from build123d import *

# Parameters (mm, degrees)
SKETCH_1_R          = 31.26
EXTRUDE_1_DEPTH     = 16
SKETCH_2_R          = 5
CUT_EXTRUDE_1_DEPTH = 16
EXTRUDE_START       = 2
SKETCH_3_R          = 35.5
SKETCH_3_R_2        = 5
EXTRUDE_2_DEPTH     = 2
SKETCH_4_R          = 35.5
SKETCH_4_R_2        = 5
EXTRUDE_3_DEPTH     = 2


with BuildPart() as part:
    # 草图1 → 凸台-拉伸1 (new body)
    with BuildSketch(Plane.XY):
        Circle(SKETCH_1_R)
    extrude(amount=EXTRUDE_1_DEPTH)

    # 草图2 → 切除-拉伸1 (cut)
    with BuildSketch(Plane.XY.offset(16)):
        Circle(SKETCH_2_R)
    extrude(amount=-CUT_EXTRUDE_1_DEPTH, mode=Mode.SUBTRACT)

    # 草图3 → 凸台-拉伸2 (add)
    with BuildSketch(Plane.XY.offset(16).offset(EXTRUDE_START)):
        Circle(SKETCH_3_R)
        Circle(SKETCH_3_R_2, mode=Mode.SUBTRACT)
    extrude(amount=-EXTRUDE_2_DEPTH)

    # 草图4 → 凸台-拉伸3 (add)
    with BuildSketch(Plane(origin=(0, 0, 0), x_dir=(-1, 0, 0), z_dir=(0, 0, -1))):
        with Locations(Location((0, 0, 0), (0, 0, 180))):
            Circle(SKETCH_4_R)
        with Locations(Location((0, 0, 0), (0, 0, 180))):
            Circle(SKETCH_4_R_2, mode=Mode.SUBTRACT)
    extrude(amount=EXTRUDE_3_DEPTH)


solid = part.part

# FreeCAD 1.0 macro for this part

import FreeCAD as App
import Part
import Sketcher
Q = App.Units.Quantity

doc = App.newDocument("Part")
body = doc.addObject("PartDesign::Body", "Body")

sketch1 = body.newObject("Sketcher::SketchObject", "Sketch")
sketch1.AttachmentSupport = (doc.getObject("XY_Plane"), [""])
sketch1.MapMode = "FlatFace"
sketch1.addGeometry(Part.Circle(App.Vector(0, 0, 0), App.Vector(0, 0, 1), 31.26), False)
sketch1.addConstraint([
    Sketcher.Constraint("Coincident", 0, 3, -1, 1),
    Sketcher.Constraint("Diameter", 0, Q("62.52 mm")),
])
pad1 = body.newObject("PartDesign::Pad", "Pad")
pad1.Profile = sketch1
pad1.Length = 16

sketch2 = body.newObject("Sketcher::SketchObject", "Sketch001")
sketch2.AttachmentSupport = (doc.getObject("XY_Plane"), [""])
sketch2.MapMode = "FlatFace"
sketch2.AttachmentOffset = App.Placement(App.Vector(0, 0, 16), App.Rotation())
sketch2.addGeometry(Part.Circle(App.Vector(0, 0, 0), App.Vector(0, 0, 1), 5), False)
sketch2.addConstraint([
    Sketcher.Constraint("Coincident", 0, 3, -1, 1),
    Sketcher.Constraint("Diameter", 0, Q("10 mm")),
])
pocket1 = body.newObject("PartDesign::Pocket", "Pocket")
pocket1.Profile = sketch2
pocket1.Length = 16

sketch3 = body.newObject("Sketcher::SketchObject", "Sketch002")
sketch3.AttachmentSupport = (doc.getObject("XY_Plane"), [""])
sketch3.MapMode = "FlatFace"
sketch3.AttachmentOffset = App.Placement(App.Vector(0, 0, 18), App.Rotation())
sketch3.addGeometry([
    Part.Circle(App.Vector(0, 0, 0), App.Vector(0, 0, 1), 35.5),
    Part.Circle(App.Vector(0, 0, 0), App.Vector(0, 0, 1), 5),
], False)
sketch3.addConstraint([
    Sketcher.Constraint("Coincident", 0, 3, -1, 1),
    Sketcher.Constraint("Coincident", 1, 3, -1, 1),
    Sketcher.Constraint("Diameter", 0, Q("71 mm")),
    Sketcher.Constraint("Diameter", 1, Q("10 mm")),
])
pad2 = body.newObject("PartDesign::Pad", "Pad001")
pad2.Profile = sketch3
pad2.Length = 2
pad2.Reversed = True

sketch4 = body.newObject("Sketcher::SketchObject", "Sketch003")
sketch4.AttachmentSupport = (doc.getObject("XY_Plane"), [""])
sketch4.MapMode = "FlatFace"
sketch4.addGeometry([
    Part.Circle(App.Vector(0, 0, 0), App.Vector(0, 0, 1), 35.5),
    Part.Circle(App.Vector(0, 0, 0), App.Vector(0, 0, 1), 5),
], False)
sketch4.addConstraint([
    Sketcher.Constraint("Coincident", 0, 3, -1, 1),
    Sketcher.Constraint("Coincident", 1, 3, -1, 1),
    Sketcher.Constraint("Diameter", 0, Q("71 mm")),
    Sketcher.Constraint("Diameter", 1, Q("10 mm")),
])
pad3 = body.newObject("PartDesign::Pad", "Pad002")
pad3.Profile = sketch4
pad3.Length = 2
pad3.Reversed = True

doc.recompute()
